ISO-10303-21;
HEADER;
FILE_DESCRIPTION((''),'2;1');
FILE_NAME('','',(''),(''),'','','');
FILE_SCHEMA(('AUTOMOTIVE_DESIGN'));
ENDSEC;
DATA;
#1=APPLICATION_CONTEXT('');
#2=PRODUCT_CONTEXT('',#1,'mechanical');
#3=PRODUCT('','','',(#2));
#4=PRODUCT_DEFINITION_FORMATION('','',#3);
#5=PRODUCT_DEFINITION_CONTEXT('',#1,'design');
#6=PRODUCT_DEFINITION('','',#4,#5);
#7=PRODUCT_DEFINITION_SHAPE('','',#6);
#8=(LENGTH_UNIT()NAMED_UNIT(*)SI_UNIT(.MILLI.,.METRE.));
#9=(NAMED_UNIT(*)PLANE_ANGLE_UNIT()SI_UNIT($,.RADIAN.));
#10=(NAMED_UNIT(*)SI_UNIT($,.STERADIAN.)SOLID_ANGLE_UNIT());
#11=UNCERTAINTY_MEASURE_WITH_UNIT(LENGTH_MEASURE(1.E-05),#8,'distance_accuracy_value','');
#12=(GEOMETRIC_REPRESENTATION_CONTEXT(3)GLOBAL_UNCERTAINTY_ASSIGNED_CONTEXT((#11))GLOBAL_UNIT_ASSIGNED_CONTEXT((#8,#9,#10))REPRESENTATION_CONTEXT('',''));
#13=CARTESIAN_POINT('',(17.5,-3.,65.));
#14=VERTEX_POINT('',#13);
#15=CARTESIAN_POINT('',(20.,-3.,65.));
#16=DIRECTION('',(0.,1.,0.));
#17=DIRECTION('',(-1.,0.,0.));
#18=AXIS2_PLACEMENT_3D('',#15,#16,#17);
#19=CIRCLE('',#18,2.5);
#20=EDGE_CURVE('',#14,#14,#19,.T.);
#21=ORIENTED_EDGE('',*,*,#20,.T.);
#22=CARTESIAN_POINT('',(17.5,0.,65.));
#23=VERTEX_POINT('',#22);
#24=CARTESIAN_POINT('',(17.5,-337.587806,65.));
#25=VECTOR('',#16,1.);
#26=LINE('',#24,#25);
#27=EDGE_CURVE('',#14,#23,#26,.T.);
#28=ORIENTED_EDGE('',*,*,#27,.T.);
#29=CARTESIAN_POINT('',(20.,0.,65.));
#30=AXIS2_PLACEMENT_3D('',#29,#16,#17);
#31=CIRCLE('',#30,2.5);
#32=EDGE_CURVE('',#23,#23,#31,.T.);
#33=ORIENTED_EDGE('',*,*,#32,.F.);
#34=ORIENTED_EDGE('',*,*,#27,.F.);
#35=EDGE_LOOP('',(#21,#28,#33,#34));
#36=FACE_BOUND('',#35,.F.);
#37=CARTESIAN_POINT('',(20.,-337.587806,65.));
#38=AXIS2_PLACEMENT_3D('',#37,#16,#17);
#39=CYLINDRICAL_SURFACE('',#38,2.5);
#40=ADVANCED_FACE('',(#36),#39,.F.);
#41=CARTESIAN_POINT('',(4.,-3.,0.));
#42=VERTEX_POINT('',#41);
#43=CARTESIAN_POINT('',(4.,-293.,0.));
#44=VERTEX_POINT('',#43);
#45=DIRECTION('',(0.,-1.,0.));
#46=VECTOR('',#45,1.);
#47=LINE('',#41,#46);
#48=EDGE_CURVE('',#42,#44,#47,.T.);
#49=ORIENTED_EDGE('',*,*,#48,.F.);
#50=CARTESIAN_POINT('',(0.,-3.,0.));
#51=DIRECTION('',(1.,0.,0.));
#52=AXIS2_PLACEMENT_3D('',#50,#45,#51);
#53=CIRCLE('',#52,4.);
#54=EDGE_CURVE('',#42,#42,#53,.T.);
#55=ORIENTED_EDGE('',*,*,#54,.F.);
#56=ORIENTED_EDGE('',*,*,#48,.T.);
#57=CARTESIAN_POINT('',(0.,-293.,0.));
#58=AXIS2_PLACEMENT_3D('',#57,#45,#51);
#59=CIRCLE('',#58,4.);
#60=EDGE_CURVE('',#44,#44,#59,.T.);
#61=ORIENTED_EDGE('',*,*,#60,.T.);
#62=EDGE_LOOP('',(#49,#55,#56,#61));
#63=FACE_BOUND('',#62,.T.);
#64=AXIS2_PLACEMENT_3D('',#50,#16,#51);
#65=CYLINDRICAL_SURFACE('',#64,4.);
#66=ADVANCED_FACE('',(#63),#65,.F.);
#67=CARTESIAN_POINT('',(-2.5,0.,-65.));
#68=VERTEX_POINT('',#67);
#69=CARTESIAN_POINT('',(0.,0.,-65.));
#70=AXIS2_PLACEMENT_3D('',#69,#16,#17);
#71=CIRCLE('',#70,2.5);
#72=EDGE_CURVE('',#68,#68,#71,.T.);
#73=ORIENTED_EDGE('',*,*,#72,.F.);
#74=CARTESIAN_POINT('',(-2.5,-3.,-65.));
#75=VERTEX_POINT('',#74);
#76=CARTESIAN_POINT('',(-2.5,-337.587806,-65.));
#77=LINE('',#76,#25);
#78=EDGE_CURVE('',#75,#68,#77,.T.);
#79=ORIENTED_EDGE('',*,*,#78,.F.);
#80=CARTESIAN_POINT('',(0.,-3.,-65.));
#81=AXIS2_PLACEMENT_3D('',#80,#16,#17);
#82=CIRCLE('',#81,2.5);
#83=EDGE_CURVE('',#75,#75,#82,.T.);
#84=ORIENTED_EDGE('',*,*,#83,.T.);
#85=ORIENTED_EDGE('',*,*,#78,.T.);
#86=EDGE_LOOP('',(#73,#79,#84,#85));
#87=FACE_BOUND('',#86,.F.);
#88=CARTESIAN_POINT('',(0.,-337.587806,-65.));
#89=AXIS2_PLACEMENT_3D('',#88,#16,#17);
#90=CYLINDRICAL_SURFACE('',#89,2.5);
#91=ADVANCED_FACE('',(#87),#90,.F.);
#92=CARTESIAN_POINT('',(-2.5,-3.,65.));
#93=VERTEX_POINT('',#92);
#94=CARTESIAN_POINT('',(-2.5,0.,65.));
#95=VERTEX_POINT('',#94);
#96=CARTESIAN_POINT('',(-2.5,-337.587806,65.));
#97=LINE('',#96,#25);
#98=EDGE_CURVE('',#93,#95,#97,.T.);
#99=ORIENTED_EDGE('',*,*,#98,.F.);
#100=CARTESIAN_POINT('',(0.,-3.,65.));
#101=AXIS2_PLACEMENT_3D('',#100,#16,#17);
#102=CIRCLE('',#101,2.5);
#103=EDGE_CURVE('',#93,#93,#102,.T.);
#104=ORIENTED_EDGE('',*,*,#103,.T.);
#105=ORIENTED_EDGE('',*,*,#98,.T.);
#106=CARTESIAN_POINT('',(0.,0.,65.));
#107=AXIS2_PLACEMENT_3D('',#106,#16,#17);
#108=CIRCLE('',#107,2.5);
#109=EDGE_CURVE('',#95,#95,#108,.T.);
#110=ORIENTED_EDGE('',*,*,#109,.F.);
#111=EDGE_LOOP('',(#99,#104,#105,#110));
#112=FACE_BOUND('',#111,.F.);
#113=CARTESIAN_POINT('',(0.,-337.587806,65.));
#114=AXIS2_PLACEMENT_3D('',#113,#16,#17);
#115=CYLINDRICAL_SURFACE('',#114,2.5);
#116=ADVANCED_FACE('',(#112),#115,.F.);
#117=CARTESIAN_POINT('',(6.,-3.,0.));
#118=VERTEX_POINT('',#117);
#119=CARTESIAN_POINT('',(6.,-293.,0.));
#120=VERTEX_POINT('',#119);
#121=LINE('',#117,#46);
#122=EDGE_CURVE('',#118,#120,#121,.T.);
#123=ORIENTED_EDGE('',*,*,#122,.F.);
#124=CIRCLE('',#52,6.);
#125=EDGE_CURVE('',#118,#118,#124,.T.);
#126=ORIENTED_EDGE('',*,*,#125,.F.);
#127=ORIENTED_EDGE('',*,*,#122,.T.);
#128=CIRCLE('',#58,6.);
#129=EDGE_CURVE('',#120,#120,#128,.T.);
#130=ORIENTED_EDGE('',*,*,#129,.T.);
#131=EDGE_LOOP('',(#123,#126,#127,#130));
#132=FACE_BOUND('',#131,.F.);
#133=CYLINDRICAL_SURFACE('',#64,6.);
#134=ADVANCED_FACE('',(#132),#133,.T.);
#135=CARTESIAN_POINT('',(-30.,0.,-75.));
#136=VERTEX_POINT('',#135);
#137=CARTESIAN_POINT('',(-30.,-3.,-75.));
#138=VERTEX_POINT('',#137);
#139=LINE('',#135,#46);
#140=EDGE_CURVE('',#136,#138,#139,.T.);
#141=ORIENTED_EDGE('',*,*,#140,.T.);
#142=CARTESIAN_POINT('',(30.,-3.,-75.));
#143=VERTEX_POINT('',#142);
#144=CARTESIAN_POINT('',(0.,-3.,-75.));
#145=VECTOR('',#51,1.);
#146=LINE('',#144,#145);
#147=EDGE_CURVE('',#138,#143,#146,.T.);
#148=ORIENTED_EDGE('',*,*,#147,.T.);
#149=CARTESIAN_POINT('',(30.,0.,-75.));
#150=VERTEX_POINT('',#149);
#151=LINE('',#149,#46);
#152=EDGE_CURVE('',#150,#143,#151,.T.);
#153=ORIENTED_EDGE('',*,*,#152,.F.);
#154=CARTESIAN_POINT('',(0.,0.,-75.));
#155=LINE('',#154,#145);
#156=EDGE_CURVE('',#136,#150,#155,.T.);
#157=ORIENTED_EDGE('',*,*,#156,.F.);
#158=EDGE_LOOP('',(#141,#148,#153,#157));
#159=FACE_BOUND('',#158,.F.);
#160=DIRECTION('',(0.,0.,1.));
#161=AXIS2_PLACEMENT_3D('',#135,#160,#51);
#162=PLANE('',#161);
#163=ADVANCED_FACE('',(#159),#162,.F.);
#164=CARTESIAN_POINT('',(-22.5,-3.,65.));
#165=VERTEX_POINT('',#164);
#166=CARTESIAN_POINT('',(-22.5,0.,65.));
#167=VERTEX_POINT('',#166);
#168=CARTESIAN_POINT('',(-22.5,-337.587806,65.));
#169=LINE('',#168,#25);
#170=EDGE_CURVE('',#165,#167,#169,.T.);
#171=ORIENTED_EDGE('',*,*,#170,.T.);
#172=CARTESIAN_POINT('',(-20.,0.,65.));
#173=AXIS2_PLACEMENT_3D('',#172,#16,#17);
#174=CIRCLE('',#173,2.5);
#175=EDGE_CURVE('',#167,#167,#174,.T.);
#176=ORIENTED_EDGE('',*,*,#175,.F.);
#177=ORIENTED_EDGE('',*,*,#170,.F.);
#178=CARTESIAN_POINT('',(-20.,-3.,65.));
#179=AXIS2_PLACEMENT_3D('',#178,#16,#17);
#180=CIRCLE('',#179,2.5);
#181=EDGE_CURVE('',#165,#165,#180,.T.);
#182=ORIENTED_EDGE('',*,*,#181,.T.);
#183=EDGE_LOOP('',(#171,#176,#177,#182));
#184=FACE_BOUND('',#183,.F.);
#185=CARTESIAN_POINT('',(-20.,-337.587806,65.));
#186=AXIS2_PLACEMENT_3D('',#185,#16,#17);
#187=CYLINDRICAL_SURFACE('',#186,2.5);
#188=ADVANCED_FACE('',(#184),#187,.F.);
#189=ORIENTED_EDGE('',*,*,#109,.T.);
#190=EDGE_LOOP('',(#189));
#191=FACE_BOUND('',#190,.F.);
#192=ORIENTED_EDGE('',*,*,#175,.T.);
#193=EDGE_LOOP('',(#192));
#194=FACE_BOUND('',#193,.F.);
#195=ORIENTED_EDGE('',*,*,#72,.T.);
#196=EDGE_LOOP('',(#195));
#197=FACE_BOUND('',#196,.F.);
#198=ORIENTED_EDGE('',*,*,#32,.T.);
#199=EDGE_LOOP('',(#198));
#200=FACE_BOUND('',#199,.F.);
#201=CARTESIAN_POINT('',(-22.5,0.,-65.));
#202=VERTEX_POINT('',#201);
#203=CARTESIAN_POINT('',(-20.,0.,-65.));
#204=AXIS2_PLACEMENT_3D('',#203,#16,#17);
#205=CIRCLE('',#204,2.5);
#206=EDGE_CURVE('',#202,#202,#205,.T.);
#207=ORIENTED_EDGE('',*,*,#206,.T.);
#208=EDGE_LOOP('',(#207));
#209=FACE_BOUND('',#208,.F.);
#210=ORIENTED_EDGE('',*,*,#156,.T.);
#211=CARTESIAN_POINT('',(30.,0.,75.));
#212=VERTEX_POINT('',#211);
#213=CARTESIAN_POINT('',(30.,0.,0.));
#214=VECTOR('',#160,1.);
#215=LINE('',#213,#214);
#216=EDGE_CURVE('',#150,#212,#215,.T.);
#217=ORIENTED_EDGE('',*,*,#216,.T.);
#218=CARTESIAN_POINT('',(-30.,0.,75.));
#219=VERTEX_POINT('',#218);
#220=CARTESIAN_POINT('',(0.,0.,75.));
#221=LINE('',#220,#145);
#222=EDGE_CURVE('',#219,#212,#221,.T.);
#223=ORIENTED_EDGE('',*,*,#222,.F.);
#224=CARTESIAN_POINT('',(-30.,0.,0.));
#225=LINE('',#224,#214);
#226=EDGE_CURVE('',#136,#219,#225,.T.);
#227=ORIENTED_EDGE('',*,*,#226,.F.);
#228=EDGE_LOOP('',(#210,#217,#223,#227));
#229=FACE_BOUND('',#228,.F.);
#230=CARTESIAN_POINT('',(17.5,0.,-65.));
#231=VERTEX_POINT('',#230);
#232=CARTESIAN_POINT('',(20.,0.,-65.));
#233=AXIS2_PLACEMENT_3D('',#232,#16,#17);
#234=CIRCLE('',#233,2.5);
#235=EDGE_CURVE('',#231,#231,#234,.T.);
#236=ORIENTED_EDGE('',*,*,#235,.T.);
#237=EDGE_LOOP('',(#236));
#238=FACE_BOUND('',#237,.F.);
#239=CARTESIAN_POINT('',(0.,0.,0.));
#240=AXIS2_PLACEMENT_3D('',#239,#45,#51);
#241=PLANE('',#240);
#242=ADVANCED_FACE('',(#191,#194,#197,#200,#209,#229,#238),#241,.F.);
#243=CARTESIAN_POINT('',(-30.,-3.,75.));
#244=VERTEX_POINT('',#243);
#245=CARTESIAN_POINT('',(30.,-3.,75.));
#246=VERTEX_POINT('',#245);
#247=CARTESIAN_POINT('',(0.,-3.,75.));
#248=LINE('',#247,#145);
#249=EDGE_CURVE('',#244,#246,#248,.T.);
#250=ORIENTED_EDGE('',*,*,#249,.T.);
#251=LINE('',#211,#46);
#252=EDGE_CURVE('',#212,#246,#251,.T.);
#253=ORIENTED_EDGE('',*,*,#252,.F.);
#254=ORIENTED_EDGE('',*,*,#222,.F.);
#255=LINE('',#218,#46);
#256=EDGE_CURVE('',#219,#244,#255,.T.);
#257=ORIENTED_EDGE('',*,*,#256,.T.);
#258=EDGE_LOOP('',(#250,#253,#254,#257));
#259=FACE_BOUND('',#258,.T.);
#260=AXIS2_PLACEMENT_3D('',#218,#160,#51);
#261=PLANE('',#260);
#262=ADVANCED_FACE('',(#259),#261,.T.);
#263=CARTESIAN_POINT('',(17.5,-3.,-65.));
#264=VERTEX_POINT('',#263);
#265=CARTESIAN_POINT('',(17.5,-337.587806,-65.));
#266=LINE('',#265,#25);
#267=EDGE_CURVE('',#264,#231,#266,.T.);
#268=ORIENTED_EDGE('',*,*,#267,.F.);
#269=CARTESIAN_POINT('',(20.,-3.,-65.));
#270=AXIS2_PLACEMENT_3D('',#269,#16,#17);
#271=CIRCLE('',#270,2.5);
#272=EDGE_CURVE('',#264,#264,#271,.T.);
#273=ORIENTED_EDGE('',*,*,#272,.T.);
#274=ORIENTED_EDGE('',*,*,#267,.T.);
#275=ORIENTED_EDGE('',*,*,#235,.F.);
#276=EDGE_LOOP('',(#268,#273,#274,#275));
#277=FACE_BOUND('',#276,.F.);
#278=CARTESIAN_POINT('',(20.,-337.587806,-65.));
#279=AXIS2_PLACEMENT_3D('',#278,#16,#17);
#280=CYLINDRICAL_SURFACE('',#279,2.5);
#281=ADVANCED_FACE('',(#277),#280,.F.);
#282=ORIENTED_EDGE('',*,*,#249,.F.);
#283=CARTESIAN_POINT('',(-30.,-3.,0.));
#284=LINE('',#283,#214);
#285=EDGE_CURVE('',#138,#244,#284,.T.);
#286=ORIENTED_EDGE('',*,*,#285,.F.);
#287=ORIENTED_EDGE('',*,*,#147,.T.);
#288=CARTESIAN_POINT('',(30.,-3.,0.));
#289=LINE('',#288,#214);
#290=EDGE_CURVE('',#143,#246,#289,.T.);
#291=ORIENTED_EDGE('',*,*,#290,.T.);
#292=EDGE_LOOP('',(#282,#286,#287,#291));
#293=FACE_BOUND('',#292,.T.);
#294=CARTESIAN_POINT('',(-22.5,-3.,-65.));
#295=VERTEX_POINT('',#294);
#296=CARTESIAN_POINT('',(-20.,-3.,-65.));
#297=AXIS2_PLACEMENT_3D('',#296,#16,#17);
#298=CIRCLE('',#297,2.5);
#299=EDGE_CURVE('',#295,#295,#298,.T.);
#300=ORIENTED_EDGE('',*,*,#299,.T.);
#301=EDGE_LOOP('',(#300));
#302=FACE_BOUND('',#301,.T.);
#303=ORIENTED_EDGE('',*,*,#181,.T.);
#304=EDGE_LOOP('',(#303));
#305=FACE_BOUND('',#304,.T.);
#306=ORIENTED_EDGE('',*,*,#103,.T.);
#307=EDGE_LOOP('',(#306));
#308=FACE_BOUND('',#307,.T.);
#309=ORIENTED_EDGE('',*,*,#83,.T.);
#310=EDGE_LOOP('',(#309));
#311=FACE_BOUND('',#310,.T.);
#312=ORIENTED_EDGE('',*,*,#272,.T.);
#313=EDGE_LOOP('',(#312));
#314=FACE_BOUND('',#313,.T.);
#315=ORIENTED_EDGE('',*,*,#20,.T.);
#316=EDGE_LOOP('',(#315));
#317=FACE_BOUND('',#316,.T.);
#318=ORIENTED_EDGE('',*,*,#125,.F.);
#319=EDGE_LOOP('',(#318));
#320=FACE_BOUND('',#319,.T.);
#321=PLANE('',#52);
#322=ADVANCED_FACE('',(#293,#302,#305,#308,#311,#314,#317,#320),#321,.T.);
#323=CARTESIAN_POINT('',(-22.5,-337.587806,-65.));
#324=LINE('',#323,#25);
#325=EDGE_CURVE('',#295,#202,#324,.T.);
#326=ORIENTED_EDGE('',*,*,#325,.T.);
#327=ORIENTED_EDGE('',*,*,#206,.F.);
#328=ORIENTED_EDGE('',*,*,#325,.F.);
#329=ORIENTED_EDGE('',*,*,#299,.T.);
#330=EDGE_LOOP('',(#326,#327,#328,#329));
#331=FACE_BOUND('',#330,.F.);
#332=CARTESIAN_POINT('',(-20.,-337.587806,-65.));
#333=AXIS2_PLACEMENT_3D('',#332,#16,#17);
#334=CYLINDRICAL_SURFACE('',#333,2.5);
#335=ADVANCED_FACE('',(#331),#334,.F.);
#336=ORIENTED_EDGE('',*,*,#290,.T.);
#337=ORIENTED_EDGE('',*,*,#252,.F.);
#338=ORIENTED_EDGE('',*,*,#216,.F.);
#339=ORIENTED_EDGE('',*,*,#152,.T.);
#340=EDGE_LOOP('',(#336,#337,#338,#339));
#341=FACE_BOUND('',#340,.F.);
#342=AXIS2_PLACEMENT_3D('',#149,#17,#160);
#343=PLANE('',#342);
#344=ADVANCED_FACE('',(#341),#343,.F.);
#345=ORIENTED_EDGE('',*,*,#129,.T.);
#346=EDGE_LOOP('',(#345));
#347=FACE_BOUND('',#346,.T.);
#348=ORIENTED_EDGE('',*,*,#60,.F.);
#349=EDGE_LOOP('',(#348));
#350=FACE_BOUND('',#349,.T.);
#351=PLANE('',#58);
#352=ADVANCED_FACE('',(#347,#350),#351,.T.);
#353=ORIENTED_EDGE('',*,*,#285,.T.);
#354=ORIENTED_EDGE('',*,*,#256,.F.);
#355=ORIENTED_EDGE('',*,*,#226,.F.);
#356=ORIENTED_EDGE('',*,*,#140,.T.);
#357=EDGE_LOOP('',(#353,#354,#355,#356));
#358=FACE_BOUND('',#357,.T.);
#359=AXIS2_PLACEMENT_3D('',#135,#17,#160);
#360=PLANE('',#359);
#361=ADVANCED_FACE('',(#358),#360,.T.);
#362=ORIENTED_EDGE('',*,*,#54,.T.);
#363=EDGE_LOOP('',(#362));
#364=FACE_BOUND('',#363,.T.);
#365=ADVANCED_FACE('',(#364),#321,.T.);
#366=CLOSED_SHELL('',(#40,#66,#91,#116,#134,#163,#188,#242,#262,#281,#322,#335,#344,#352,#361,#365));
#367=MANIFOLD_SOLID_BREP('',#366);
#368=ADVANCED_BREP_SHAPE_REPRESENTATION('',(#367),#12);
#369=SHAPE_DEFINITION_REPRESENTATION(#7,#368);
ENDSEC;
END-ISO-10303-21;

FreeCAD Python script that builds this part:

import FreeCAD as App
import Part
import Sketcher
from FreeCAD import Vector

doc = App.newDocument("Part")
params = doc.addObject("Spreadsheet::Sheet", "Params")
for row, (alias, value) in enumerate([
    ("sketch1_width", "60 mm"),
    ("sketch1_height", "150 mm"),
    ("pad1_length", "3 mm"),
    ("sketch2_diameter", "12 mm"),
    ("sketch2_diameter2", "8 mm"),
    ("pad2_length", "290 mm"),
    ("sketch3_diameter", "5 mm"),
    ("hole_diameter", "5 mm"),
], start=1):
    params.set(f"A{row}", alias)
    params.set(f"B{row}", "=" + value)
    params.setAlias(f"B{row}", alias)

body = doc.addObject("PartDesign::Body", "Body")

sketch1 = body.newObject("Sketcher::SketchObject", "Sketch")
sketch1.AttachmentSupport = (doc.getObject("XZ_Plane"), [""])
sketch1.MapMode = "FlatFace"
sketch1.addGeometry(Part.LineSegment(Vector(-30, 75, 0), Vector(-30, -75, 0)), False)
sketch1.addGeometry(Part.LineSegment(Vector(-30, -75, 0), Vector(30, -75, 0)), False)
sketch1.addGeometry(Part.LineSegment(Vector(30, -75, 0), Vector(30, 75, 0)), False)
sketch1.addGeometry(Part.LineSegment(Vector(30, 75, 0), Vector(-30, 75, 0)), False)
sketch1.addConstraint(Sketcher.Constraint("Coincident", 0, 2, 1, 1))
sketch1.addConstraint(Sketcher.Constraint("Coincident", 1, 2, 2, 1))
sketch1.addConstraint(Sketcher.Constraint("Coincident", 2, 2, 3, 1))
sketch1.addConstraint(Sketcher.Constraint("Coincident", 3, 2, 0, 1))
sketch1.addConstraint(Sketcher.Constraint("Vertical", 0))
sketch1.addConstraint(Sketcher.Constraint("Horizontal", 1))
sketch1.addConstraint(Sketcher.Constraint("Vertical", 2))
sketch1.addConstraint(Sketcher.Constraint("Horizontal", 3))
sketch1.addConstraint(Sketcher.Constraint("Symmetric", 0, 2, 2, 2, -1, 1))
sketch1.addConstraint(Sketcher.Constraint("DistanceX", 1, 1, 1, 2, 60.0))
sketch1.addConstraint(Sketcher.Constraint("DistanceY", 0, 2, 0, 1, 150.0))
sketch1.setExpression("Constraints[9]", "Params.sketch1_width")
sketch1.setExpression("Constraints[10]", "Params.sketch1_height")
pad1 = body.newObject("PartDesign::Pad", "Pad")
pad1.Profile = sketch1
pad1.setExpression("Length", "Params.pad1_length")

sketch2 = body.newObject("Sketcher::SketchObject", "Sketch001")
sketch2.AttachmentSupport = (doc.getObject("XZ_Plane"), [""])
sketch2.MapMode = "FlatFace"
sketch2.AttachmentOffset = App.Placement(Vector(0, 0, 3), App.Rotation())
sketch2.addGeometry(Part.Circle(Vector(0, 0, 0), Vector(0, 0, 1), 6), False)
sketch2.addGeometry(Part.Circle(Vector(0, 0, 0), Vector(0, 0, 1), 4), False)
sketch2.addConstraint(Sketcher.Constraint("Coincident", 0, 3, -1, 1))
sketch2.addConstraint(Sketcher.Constraint("Coincident", 1, 3, -1, 1))
sketch2.addConstraint(Sketcher.Constraint("Diameter", 0, 12.0))
sketch2.addConstraint(Sketcher.Constraint("Diameter", 1, 8.0))
sketch2.setExpression("Constraints[2]", "Params.sketch2_diameter")
sketch2.setExpression("Constraints[3]", "Params.sketch2_diameter2")
pad2 = body.newObject("PartDesign::Pad", "Pad001")
pad2.Profile = sketch2
pad2.setExpression("Length", "Params.pad2_length")

sketch3 = body.newObject("Sketcher::SketchObject", "Sketch002")
sketch3.AttachmentSupport = (doc.getObject("XZ_Plane"), [""])
sketch3.MapMode = "FlatFace"
sketch3.AttachmentOffset = App.Placement(Vector(0, 0, 3), App.Rotation())
sketch3.addGeometry(Part.Circle(Vector(-20, 65, 0), Vector(0, 0, 1), 2.5), False)
sketch3.addGeometry(Part.Circle(Vector(0, 65, 0), Vector(0, 0, 1), 2.5), False)
sketch3.addGeometry(Part.Circle(Vector(20, 65, 0), Vector(0, 0, 1), 2.5), False)
sketch3.addGeometry(Part.Circle(Vector(20, -65, 0), Vector(0, 0, 1), 2.5), False)
sketch3.addGeometry(Part.Circle(Vector(0, -65, 0), Vector(0, 0, 1), 2.5), False)
sketch3.addGeometry(Part.Circle(Vector(-20, -65, 0), Vector(0, 0, 1), 2.5), False)
sketch3.addConstraint(Sketcher.Constraint("Equal", 0, 1))
sketch3.addConstraint(Sketcher.Constraint("Equal", 1, 2))
sketch3.addConstraint(Sketcher.Constraint("Equal", 2, 3))
sketch3.addConstraint(Sketcher.Constraint("Equal", 3, 4))
sketch3.addConstraint(Sketcher.Constraint("Equal", 4, 5))
sketch3.addConstraint(Sketcher.Constraint("Symmetric", 0, 3, 3, 3, -1, 1))
sketch3.addConstraint(Sketcher.Constraint("Symmetric", 1, 3, 4, 3, -1, 1))
sketch3.addConstraint(Sketcher.Constraint("Symmetric", 2, 3, 5, 3, -1, 1))
sketch3.addConstraint(Sketcher.Constraint("Symmetric", 0, 3, 2, 3, -2))
sketch3.addConstraint(Sketcher.Constraint("PointOnObject", 1, 3, -2))
sketch3.addConstraint(Sketcher.Constraint("Horizontal", 0, 3, 1, 3))
sketch3.addConstraint(Sketcher.Constraint("Diameter", 0, 5.0))
sketch3.addConstraint(Sketcher.Constraint("DistanceX", 0, 3, -1, 1, 20.0))
sketch3.addConstraint(Sketcher.Constraint("DistanceY", -1, 1, 0, 3, 65.0))
sketch3.setExpression("Constraints[11]", "Params.sketch3_diameter")
doc.recompute()
hole = body.newObject("PartDesign::Hole", "Hole")
hole.Profile = sketch3
hole.ThreadType = "None"
hole.setExpression("Diameter", "Params.hole_diameter")
hole.DepthType = "ThroughAll"

doc.recompute()
